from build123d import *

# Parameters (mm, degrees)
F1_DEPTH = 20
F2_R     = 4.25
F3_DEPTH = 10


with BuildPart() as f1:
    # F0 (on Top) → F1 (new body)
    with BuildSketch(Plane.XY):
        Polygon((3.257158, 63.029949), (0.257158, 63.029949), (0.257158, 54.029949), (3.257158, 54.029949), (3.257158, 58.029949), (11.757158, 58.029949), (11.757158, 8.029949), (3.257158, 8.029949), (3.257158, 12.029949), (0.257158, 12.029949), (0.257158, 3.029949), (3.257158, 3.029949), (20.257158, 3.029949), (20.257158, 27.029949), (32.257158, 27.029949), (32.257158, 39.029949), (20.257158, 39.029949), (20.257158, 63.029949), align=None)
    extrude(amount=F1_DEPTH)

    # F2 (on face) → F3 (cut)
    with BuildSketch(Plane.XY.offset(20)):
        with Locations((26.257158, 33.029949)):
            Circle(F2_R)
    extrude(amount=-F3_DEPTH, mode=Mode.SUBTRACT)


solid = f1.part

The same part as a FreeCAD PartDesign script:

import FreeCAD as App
import Part
import Sketcher

V = App.Vector
Q = App.Units.Quantity


def add_polygon(sketch, points):
    """Adds a closed chain of lines whose ends are joined by coincident constraints."""
    first, n = sketch.GeometryCount, len(points)
    for a, b in zip(points, points[1:] + points[:1]):
        sketch.addGeometry(Part.LineSegment(App.Vector(*a, 0), App.Vector(*b, 0)), False)
    for i in range(n):
        sketch.addConstraint(Sketcher.Constraint("Coincident", first + i, 2, first + (i + 1) % n, 1))

doc = App.newDocument("Part")
body = doc.addObject("PartDesign::Body", "Body")

# Sketch on XY plane
sketch1 = body.newObject("Sketcher::SketchObject", "Sketch")
sketch1.AttachmentSupport = (doc.getObject("XY_Plane"), [""])
sketch1.MapMode = "FlatFace"
add_polygon(sketch1, [(0.3, 63), (0.3, 54), (3.3, 54), (3.3, 58), (11.8, 58), (11.8, 8), (3.3, 8), (3.3, 12), (0.3, 12), (0.3, 3), (20.3, 3), (20.3, 27), (32.3, 27), (32.3, 39), (20.3, 39), (20.3, 63)])  # lines 0-15
sketch1.addConstraint([
    Sketcher.Constraint("Vertical", 0),
    Sketcher.Constraint("Horizontal", 1),
    Sketcher.Constraint("Vertical", 2),
    Sketcher.Constraint("Horizontal", 3),
    Sketcher.Constraint("Vertical", 4),
    Sketcher.Constraint("Horizontal", 5),
    Sketcher.Constraint("Vertical", 6),
    Sketcher.Constraint("Horizontal", 7),
    Sketcher.Constraint("Vertical", 8),
    Sketcher.Constraint("Horizontal", 9),
    Sketcher.Constraint("Vertical", 10),
    Sketcher.Constraint("Horizontal", 11),
    Sketcher.Constraint("Vertical", 12),
    Sketcher.Constraint("Horizontal", 13),
    Sketcher.Constraint("Vertical", 14),
    Sketcher.Constraint("Horizontal", 15),
    Sketcher.Constraint("Vertical", 2, 2, 5, 2),
    Sketcher.Constraint("Vertical", 0, 2, 7, 2),
    Sketcher.Constraint("Vertical", 10, 2, 13, 2),
    Sketcher.Constraint("Equal", 2, 6),
    Sketcher.Constraint("Equal", 0, 8),
    Sketcher.Constraint("Equal", 13, 12),
    Sketcher.Constraint("Equal", 10, 14),
    Sketcher.Constraint("DistanceX", 1, 1, 1, 2, Q("3 mm")),
    Sketcher.Constraint("DistanceX", 9, 1, 9, 2, Q("20 mm")),
    Sketcher.Constraint("DistanceX", 11, 1, 11, 2, Q("12 mm")),
    Sketcher.Constraint("DistanceY", 0, 2, 0, 1, Q("9 mm")),
    Sketcher.Constraint("DistanceY", 2, 1, 2, 2, Q("4 mm")),
    Sketcher.Constraint("DistanceY", 4, 2, 4, 1, Q("50 mm")),
    Sketcher.Constraint("DistanceX", 3, 1, 3, 2, Q("8.5 mm")),
    Sketcher.Constraint("DistanceY", -1, 1, 0, 2, Q("54.029949 mm")),
    Sketcher.Constraint("DistanceX", -1, 1, 1, 2, Q("3.257158 mm")),
])
pad1 = body.newObject("PartDesign::Pad", "Pad")
pad1.Profile = sketch1
pad1.Length = 20

# Sketch on XY plane
sketch2 = body.newObject("Sketcher::SketchObject", "Sketch001")
sketch2.AttachmentSupport = (doc.getObject("XY_Plane"), [""])
sketch2.MapMode = "FlatFace"
sketch2.AttachmentOffset = App.Placement(V(0, 0, 20), App.Rotation())
sketch2.addGeometry(Part.Circle(V(26.3, 33, 0), V(0, 0, 1), 4.2), False)
sketch2.addConstraint([
    Sketcher.Constraint("Diameter", 0, Q("8.5 mm")),
    Sketcher.Constraint("DistanceX", -1, 1, 0, 3, Q("26.257158 mm")),
    Sketcher.Constraint("DistanceY", -1, 1, 0, 3, Q("33.029949 mm")),
])
pocket1 = body.newObject("PartDesign::Pocket", "Pocket")
pocket1.Profile = sketch2
pocket1.Length = 10

doc.recompute()
